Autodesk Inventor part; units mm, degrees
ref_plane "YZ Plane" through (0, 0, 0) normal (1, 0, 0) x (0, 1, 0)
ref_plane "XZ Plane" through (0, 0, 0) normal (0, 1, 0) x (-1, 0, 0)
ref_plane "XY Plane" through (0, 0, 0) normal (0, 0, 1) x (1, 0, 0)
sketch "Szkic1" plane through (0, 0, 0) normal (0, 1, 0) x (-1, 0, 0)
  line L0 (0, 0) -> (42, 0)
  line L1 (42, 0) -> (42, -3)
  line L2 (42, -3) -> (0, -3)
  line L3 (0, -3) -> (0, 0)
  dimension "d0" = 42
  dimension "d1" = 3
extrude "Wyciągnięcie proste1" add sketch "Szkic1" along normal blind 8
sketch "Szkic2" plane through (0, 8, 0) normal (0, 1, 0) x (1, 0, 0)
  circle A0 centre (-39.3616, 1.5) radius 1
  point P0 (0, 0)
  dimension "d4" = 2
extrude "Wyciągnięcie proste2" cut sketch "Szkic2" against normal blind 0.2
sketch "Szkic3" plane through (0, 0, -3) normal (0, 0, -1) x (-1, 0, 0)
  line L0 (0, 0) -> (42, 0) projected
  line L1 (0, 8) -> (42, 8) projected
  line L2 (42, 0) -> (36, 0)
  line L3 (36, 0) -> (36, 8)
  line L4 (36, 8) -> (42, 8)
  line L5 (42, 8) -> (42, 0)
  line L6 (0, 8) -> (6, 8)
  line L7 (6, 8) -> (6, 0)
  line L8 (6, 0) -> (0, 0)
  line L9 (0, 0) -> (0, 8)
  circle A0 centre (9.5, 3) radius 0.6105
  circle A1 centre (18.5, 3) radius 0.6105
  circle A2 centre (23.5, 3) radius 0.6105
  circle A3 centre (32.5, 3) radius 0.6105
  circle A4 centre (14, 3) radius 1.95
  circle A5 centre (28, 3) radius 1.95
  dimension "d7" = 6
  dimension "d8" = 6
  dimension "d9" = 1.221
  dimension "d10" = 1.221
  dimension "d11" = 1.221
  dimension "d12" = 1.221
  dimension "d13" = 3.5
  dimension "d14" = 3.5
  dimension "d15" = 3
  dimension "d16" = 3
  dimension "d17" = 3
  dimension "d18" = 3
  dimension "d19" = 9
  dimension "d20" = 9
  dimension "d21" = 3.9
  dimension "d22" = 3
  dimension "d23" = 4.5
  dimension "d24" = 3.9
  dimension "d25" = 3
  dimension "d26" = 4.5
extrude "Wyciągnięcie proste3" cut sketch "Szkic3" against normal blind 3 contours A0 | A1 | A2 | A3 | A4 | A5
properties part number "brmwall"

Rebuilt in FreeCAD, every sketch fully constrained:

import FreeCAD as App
import Part
import Sketcher
Q = App.Units.Quantity


def add_polygon(sketch, points):
    """Adds a closed chain of lines whose ends are joined by coincident constraints."""
    first, n = sketch.GeometryCount, len(points)
    for a, b in zip(points, points[1:] + points[:1]):
        sketch.addGeometry(Part.LineSegment(App.Vector(*a, 0), App.Vector(*b, 0)), False)
    for i in range(n):
        sketch.addConstraint(Sketcher.Constraint("Coincident", first + i, 2, first + (i + 1) % n, 1))

doc = App.newDocument("Part")
body = doc.addObject("PartDesign::Body", "Body")

sketch1 = body.newObject("Sketcher::SketchObject", "Sketch")
sketch1.AttachmentSupport = (doc.getObject("XZ_Plane"), [""])
sketch1.MapMode = "FlatFace"
add_polygon(sketch1, [(-42, 0), (0, 0), (0, -3), (-42, -3)])
sketch1.addConstraint(Sketcher.Constraint("Horizontal", 0))
sketch1.addConstraint(Sketcher.Constraint("Vertical", 1))
sketch1.addConstraint(Sketcher.Constraint("Horizontal", 2))
sketch1.addConstraint(Sketcher.Constraint("Vertical", 3))
sketch1.addConstraint(Sketcher.Constraint("Coincident", 0, 2, -1, 1))
sketch1.addConstraint(Sketcher.Constraint("DistanceX", 0, 1, 0, 2, Q("42 mm")))
sketch1.addConstraint(Sketcher.Constraint("DistanceY", 1, 2, 1, 1, Q("3 mm")))
pad1 = body.newObject("PartDesign::Pad", "Pad")
pad1.Profile = sketch1
pad1.Length = 8
pad1.Reversed = True

sketch2 = body.newObject("Sketcher::SketchObject", "Sketch001")
sketch2.AttachmentSupport = (doc.getObject("XZ_Plane"), [""])
sketch2.MapMode = "FlatFace"
sketch2.AttachmentOffset = App.Placement(App.Vector(0, 0, -8), App.Rotation())
sketch2.addGeometry(Part.Circle(App.Vector(-39.4, -1.5, 0), App.Vector(0, 0, 1), 1), False)
sketch2.addConstraint(Sketcher.Constraint("Diameter", 0, Q("2 mm")))
sketch2.addConstraint(Sketcher.Constraint("DistanceY", 0, 3, -1, 1, Q("1.5 mm")))
sketch2.addConstraint(Sketcher.Constraint("DistanceX", 0, 3, -1, 1, Q("39.3616 mm")))
pocket1 = body.newObject("PartDesign::Pocket", "Pocket")
pocket1.Profile = sketch2
pocket1.Length = 0.2
pocket1.Reversed = True

sketch3 = body.newObject("Sketcher::SketchObject", "Sketch002")
sketch3.AttachmentSupport = (doc.getObject("XY_Plane"), [""])
sketch3.MapMode = "FlatFace"
sketch3.AttachmentOffset = App.Placement(App.Vector(0, 0, -3), App.Rotation())
sketch3.addGeometry(Part.Circle(App.Vector(-9.5, 3, 0), App.Vector(0, 0, 1), 0.6), False)
sketch3.addGeometry(Part.Circle(App.Vector(-18.5, 3, 0), App.Vector(0, 0, 1), 0.6), False)
sketch3.addGeometry(Part.Circle(App.Vector(-23.5, 3, 0), App.Vector(0, 0, 1), 0.6), False)
sketch3.addGeometry(Part.Circle(App.Vector(-32.5, 3, 0), App.Vector(0, 0, 1), 0.6), False)
sketch3.addGeometry(Part.Circle(App.Vector(-14, 3, 0), App.Vector(0, 0, 1), 1.9), False)
sketch3.addGeometry(Part.Circle(App.Vector(-28, 3, 0), App.Vector(0, 0, 1), 1.9), False)
sketch3.addConstraint(Sketcher.Constraint("Equal", 0, 1))
sketch3.addConstraint(Sketcher.Constraint("Equal", 1, 2))
sketch3.addConstraint(Sketcher.Constraint("Equal", 2, 3))
sketch3.addConstraint(Sketcher.Constraint("Equal", 4, 5))
sketch3.addConstraint(Sketcher.Constraint("Horizontal", 0, 3, 1, 3))
sketch3.addConstraint(Sketcher.Constraint("Horizontal", 1, 3, 2, 3))
sketch3.addConstraint(Sketcher.Constraint("Horizontal", 2, 3, 3, 3))
sketch3.addConstraint(Sketcher.Constraint("Horizontal", 3, 3, 4, 3))
sketch3.addConstraint(Sketcher.Constraint("Horizontal", 4, 3, 5, 3))
sketch3.addConstraint(Sketcher.Constraint("Diameter", 4, Q("3.9 mm")))
sketch3.addConstraint(Sketcher.Constraint("Diameter", 0, Q("1.221 mm")))
sketch3.addConstraint(Sketcher.Constraint("DistanceY", -1, 1, 0, 3, Q("3 mm")))
sketch3.addConstraint(Sketcher.Constraint("DistanceX", 1, 3, 0, 3, Q("9 mm")))
sketch3.addConstraint(Sketcher.Constraint("DistanceX", 3, 3, 2, 3, Q("9 mm")))
sketch3.addConstraint(Sketcher.Constraint("DistanceX", 4, 3, 0, 3, Q("4.5 mm")))
sketch3.addConstraint(Sketcher.Constraint("DistanceX", 5, 3, 2, 3, Q("4.5 mm")))
sketch3.addConstraint(Sketcher.Constraint("DistanceX", 4, 3, -1, 1, Q("14 mm")))
sketch3.addConstraint(Sketcher.Constraint("DistanceX", 5, 3, -1, 1, Q("28 mm")))
pocket2 = body.newObject("PartDesign::Pocket", "Pocket001")
pocket2.Profile = sketch3
pocket2.Length = 3
pocket2.Reversed = True

doc.recompute()
